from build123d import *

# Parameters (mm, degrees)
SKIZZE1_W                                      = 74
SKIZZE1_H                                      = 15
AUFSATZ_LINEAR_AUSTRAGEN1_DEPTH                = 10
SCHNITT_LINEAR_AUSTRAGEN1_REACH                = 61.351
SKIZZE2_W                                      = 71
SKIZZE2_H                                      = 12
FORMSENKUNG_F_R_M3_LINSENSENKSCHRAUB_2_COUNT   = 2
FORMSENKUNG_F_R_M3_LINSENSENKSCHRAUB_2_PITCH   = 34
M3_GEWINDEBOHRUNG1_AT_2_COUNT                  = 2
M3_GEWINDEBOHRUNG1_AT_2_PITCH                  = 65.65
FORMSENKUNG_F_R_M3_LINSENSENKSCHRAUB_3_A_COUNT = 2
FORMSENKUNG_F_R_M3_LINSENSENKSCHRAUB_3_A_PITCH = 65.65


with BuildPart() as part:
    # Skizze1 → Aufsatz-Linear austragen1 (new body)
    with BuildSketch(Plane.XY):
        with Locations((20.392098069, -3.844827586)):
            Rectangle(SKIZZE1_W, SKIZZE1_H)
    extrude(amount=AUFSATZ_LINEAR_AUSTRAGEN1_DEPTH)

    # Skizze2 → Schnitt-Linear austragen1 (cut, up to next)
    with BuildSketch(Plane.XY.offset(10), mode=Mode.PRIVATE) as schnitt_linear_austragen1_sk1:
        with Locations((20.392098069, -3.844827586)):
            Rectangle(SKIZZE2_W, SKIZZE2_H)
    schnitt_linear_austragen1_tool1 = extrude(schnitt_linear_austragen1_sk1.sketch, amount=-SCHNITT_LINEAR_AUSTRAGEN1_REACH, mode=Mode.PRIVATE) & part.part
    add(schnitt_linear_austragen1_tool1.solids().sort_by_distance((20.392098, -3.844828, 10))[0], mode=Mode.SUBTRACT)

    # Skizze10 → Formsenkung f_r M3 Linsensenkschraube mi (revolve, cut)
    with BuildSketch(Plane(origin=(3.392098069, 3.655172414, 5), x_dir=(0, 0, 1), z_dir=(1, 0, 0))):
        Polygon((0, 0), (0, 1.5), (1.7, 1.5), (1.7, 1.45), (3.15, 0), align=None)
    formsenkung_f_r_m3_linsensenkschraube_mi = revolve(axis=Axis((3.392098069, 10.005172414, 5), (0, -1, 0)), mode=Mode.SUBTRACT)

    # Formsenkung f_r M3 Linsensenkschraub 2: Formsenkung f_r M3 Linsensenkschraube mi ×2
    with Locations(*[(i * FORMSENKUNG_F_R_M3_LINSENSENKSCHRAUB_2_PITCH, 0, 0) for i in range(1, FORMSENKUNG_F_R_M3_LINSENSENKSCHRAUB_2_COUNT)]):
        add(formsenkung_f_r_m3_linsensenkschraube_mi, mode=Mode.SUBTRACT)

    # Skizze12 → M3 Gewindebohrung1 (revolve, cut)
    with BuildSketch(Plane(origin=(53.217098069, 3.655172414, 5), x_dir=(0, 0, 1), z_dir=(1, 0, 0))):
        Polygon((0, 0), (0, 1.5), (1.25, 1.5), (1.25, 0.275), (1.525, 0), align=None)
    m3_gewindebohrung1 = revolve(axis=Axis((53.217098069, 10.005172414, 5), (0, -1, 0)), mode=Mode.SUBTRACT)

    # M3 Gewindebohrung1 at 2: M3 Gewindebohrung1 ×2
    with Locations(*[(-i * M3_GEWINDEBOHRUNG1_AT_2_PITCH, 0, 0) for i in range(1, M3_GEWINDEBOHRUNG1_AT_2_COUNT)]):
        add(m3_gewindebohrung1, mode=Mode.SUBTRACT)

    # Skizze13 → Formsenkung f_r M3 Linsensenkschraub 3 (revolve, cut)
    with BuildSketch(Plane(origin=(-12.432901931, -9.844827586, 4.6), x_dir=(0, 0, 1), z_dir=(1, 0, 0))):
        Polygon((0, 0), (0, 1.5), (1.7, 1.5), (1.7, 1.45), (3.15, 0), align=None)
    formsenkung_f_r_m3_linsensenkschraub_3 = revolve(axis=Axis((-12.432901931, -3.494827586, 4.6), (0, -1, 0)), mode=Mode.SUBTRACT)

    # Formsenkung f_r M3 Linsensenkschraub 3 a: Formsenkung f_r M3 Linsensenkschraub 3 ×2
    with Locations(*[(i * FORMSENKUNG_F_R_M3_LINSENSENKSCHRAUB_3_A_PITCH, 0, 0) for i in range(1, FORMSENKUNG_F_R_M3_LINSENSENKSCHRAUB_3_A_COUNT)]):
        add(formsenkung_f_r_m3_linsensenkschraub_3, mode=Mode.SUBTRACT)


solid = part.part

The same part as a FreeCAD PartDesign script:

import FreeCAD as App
import Part
import Sketcher
Q = App.Units.Quantity


def add_polygon(sketch, points):
    """Adds a closed chain of lines whose ends are joined by coincident constraints."""
    first, n = sketch.GeometryCount, len(points)
    for a, b in zip(points, points[1:] + points[:1]):
        sketch.addGeometry(Part.LineSegment(App.Vector(*a, 0), App.Vector(*b, 0)), False)
    for i in range(n):
        sketch.addConstraint(Sketcher.Constraint("Coincident", first + i, 2, first + (i + 1) % n, 1))

doc = App.newDocument("Part")
body = doc.addObject("PartDesign::Body", "Body")

# Sketch on XY plane
sketch1 = body.newObject("Sketcher::SketchObject", "Sketch")
sketch1.AttachmentSupport = (doc.getObject("XY_Plane"), [""])
sketch1.MapMode = "FlatFace"
add_polygon(sketch1, [(-17, 4), (-17, -11), (57, -11), (57, 4)])  # lines 0-3
sketch1.addConstraint([
    Sketcher.Constraint("Vertical", 0),
    Sketcher.Constraint("Horizontal", 1),
    Sketcher.Constraint("Vertical", 2),
    Sketcher.Constraint("Horizontal", 3),
    Sketcher.Constraint("DistanceX", 1, 1, 1, 2, 74.0),
    Sketcher.Constraint("DistanceY", 0, 2, 0, 1, 15.0),
    Sketcher.Constraint("DistanceX", 0, 2, -1, 1, 16.607902),
    Sketcher.Constraint("DistanceY", 0, 2, -1, 1, 11.344828),
])
pad1 = body.newObject("PartDesign::Pad", "Pad")
pad1.Profile = sketch1
pad1.Length = 10

# Sketch on XY plane
sketch2 = body.newObject("Sketcher::SketchObject", "Sketch001")
sketch2.AttachmentSupport = (doc.getObject("XY_Plane"), [""])
sketch2.MapMode = "FlatFace"
sketch2.AttachmentOffset = App.Placement(App.Vector(0, 0, 10), App.Rotation())
add_polygon(sketch2, [(-15, 2), (-15, -10), (56, -10), (56, 2)])  # lines 0-3
sketch2.addConstraint([
    Sketcher.Constraint("Vertical", 0),
    Sketcher.Constraint("Horizontal", 1),
    Sketcher.Constraint("Vertical", 2),
    Sketcher.Constraint("Horizontal", 3),
    Sketcher.Constraint("DistanceX", 1, 1, 1, 2, 71.0),
    Sketcher.Constraint("DistanceY", 0, 2, 0, 1, 12.0),
    Sketcher.Constraint("DistanceX", 0, 2, -1, 1, 15.107902),
    Sketcher.Constraint("DistanceY", 0, 2, -1, 1, 9.844828),
])
pocket1 = body.newObject("PartDesign::Pocket", "Pocket")
pocket1.Profile = sketch2
pocket1.Type = "UpToFirst"

# Sketch on YZ plane
sketch3 = body.newObject("Sketcher::SketchObject", "Sketch002")
sketch3.AttachmentSupport = (doc.getObject("YZ_Plane"), [""])
sketch3.MapMode = "FlatFace"
sketch3.AttachmentOffset = App.Placement(App.Vector(0, 0, 3.392098), App.Rotation())
add_polygon(sketch3, [(2.16, 5), (3.66, 5), (3.66, 8.15), (2.21, 6.7), (2.16, 6.7)])  # lines 0-4
sketch3.addGeometry(Part.LineSegment(App.Vector(3.66, 5, 0), App.Vector(2.16, 5, 0)), True)  # axis
sketch3.addConstraint([
    Sketcher.Constraint("Horizontal", 0),
    Sketcher.Constraint("Vertical", 1),
    Sketcher.Constraint("Horizontal", 3),
    Sketcher.Constraint("Vertical", 4),
    Sketcher.Constraint("Horizontal", 5),
    Sketcher.Constraint("Coincident", 5, 1, 0, 2),
    Sketcher.Constraint("Vertical", 3, 2, 5, 2),
    Sketcher.Constraint("Angle", 2, Q("-135 deg")),
    Sketcher.Constraint("DistanceX", 0, 1, 0, 2, 1.5),
    Sketcher.Constraint("DistanceY", 4, 2, 4, 1, 1.7),
    Sketcher.Constraint("DistanceY", -1, 1, 0, 2, 5.0),
    Sketcher.Constraint("DistanceX", 3, 2, 3, 1, 0.05),
    Sketcher.Constraint("DistanceX", -1, 1, 0, 2, 3.655172),
])
groove = body.newObject("PartDesign::Groove", "Groove")
groove.Profile = sketch3
groove.ReferenceAxis = (sketch3, ["Axis0"])
groove.Angle = 360
doc.recompute()

linearpattern = body.newObject("PartDesign::LinearPattern", "LinearPattern")
linearpattern.Originals = [groove]
linearpattern.Direction = (doc.getObject("X_Axis"), [""])
linearpattern.Mode = "offset"
linearpattern.Offset = 34
linearpattern.Occurrences = 2
body.Tip = linearpattern

# Sketch on YZ plane
sketch4 = body.newObject("Sketcher::SketchObject", "Sketch003")
sketch4.AttachmentSupport = (doc.getObject("YZ_Plane"), [""])
sketch4.MapMode = "FlatFace"
sketch4.AttachmentOffset = App.Placement(App.Vector(0, 0, 53.217098), App.Rotation())
add_polygon(sketch4, [(2.16, 5), (3.66, 5), (3.66, 6.53), (3.38, 6.25), (2.16, 6.25)])  # lines 0-4
sketch4.addGeometry(Part.LineSegment(App.Vector(3.66, 5, 0), App.Vector(2.16, 5, 0)), True)  # axis
sketch4.addConstraint([
    Sketcher.Constraint("Horizontal", 0),
    Sketcher.Constraint("Vertical", 1),
    Sketcher.Constraint("Horizontal", 3),
    Sketcher.Constraint("Vertical", 4),
    Sketcher.Constraint("Horizontal", 5),
    Sketcher.Constraint("Coincident", 5, 1, 0, 2),
    Sketcher.Constraint("Vertical", 3, 2, 5, 2),
    Sketcher.Constraint("Angle", 2, Q("-135 deg")),
    Sketcher.Constraint("DistanceX", 0, 1, 0, 2, 1.5),
    Sketcher.Constraint("DistanceY", -1, 1, 0, 2, 5.0),
    Sketcher.Constraint("DistanceY", 4, 2, 4, 1, 1.25),
    Sketcher.Constraint("DistanceX", 3, 2, 3, 1, 1.225),
    Sketcher.Constraint("DistanceX", -1, 1, 0, 2, 3.655172),
])
groove2 = body.newObject("PartDesign::Groove", "Groove001")
groove2.Profile = sketch4
groove2.ReferenceAxis = (sketch4, ["Axis0"])
groove2.Angle = 360
doc.recompute()

linearpattern2 = body.newObject("PartDesign::LinearPattern", "LinearPattern001")
linearpattern2.Originals = [groove2]
linearpattern2.Direction = (doc.getObject("X_Axis"), [""])
linearpattern2.Mode = "offset"
linearpattern2.Offset = 65.65
linearpattern2.Occurrences = 2
linearpattern2.Reversed = True
body.Tip = linearpattern2

# Sketch on YZ plane
sketch5 = body.newObject("Sketcher::SketchObject", "Sketch004")
sketch5.AttachmentSupport = (doc.getObject("YZ_Plane"), [""])
sketch5.MapMode = "FlatFace"
sketch5.AttachmentOffset = App.Placement(App.Vector(0, 0, -12.432902), App.Rotation())
add_polygon(sketch5, [(-11.345, 4.6), (-9.845, 4.6), (-9.845, 7.75), (-11.295, 6.3), (-11.345, 6.3)])  # lines 0-4
sketch5.addGeometry(Part.LineSegment(App.Vector(-9.845, 4.6, 0), App.Vector(-11.345, 4.6, 0)), True)  # axis
sketch5.addConstraint([
    Sketcher.Constraint("Horizontal", 0),
    Sketcher.Constraint("Vertical", 1),
    Sketcher.Constraint("Horizontal", 3),
    Sketcher.Constraint("Vertical", 4),
    Sketcher.Constraint("Horizontal", 5),
    Sketcher.Constraint("Coincident", 5, 1, 0, 2),
    Sketcher.Constraint("Vertical", 3, 2, 5, 2),
    Sketcher.Constraint("Angle", 2, Q("-135 deg")),
    Sketcher.Constraint("DistanceX", 0, 1, 0, 2, 1.5),
    Sketcher.Constraint("DistanceY", 4, 2, 4, 1, 1.7),
    Sketcher.Constraint("DistanceX", 3, 2, 3, 1, 0.05),
    Sketcher.Constraint("DistanceY", -1, 1, 0, 2, 4.6),
    Sketcher.Constraint("DistanceX", 0, 2, -1, 1, 9.844828),
])
groove3 = body.newObject("PartDesign::Groove", "Groove002")
groove3.Profile = sketch5
groove3.ReferenceAxis = (sketch5, ["Axis0"])
groove3.Angle = 360
doc.recompute()

linearpattern3 = body.newObject("PartDesign::LinearPattern", "LinearPattern002")
linearpattern3.Originals = [groove3]
linearpattern3.Direction = (doc.getObject("X_Axis"), [""])
linearpattern3.Mode = "offset"
linearpattern3.Offset = 65.65
linearpattern3.Occurrences = 2
body.Tip = linearpattern3

doc.recompute()
